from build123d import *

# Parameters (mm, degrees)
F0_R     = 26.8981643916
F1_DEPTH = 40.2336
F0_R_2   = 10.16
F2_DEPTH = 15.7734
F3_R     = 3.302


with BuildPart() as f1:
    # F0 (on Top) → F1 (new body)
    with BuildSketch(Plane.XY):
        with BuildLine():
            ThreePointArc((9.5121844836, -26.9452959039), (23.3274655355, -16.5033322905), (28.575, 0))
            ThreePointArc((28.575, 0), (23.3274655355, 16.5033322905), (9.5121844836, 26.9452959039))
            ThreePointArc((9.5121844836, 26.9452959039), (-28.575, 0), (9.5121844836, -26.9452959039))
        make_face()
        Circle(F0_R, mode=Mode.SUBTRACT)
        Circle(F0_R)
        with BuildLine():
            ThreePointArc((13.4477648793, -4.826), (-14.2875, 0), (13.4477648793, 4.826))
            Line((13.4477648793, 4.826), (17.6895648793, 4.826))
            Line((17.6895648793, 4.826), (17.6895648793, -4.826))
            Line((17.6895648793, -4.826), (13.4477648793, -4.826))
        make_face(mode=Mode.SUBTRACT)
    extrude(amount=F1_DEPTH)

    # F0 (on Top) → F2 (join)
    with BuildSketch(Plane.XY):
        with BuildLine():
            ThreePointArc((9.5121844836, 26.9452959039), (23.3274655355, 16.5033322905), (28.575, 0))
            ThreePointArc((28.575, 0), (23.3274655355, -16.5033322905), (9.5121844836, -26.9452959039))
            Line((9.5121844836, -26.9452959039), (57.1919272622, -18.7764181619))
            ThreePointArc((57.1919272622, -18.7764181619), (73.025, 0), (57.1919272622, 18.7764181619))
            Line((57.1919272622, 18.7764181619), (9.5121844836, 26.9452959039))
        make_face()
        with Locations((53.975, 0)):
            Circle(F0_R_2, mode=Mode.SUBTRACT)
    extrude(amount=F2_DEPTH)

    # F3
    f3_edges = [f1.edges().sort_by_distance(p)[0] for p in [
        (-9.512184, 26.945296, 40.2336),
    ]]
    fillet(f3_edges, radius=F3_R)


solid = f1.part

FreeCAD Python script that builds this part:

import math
import FreeCAD as App
import Part
import Sketcher
from FreeCAD import Vector
Q = App.Units.Quantity


def edges_at(feature, points):
    """Names of the edges that pass closest to the given points."""
    edges = feature.Shape.Edges
    near = lambda p: min(range(len(edges)), key=lambda i: edges[i].distToShape(Part.Vertex(*p))[0])
    return sorted({f"Edge{near(p) + 1}" for p in points})

doc = App.newDocument("Part")
params = doc.addObject("Spreadsheet::Sheet", "Params")
for row, (alias, value) in enumerate([
    ("sketch1_radius", "1.125 in"),
    ("sketch1_radius2", "0.5625 in"),
    ("sketch1_height", "0.38 in"),
    ("sketch1_width", "0.167 in"),
    ("pad1_length", "1.584 in"),
    ("sketch2_diameter", "0.8 in"),
    ("sketch2_radius", "0.75 in"),
    ("sketch2_radius2", "1.125 in"),
    ("pad2_length", "0.621 in"),
    ("fillet_radius", "0.13 in"),
], start=1):
    params.set(f"A{row}", alias)
    params.set(f"B{row}", "=" + value)
    params.setAlias(f"B{row}", alias)

body = doc.addObject("PartDesign::Body", "Body")

sketch1 = doc.addObject("Sketcher::SketchObject", "Sketch")
body.addObject(sketch1)
sketch1.AttachmentSupport = (doc.XY_Plane, [""])
sketch1.MapMode = "FlatFace"
sketch1.addGeometry([
    Part.ArcOfCircle(Part.Circle(Vector(0, 0, 0), Vector(0, 0, 1), 28.6), math.radians(-71), math.radians(0)),
    Part.ArcOfCircle(Part.Circle(Vector(0, 0, 0), Vector(0, 0, 1), 28.6), math.radians(0), math.radians(71)),
    Part.ArcOfCircle(Part.Circle(Vector(0, 0, 0), Vector(0, 0, 1), 28.6), math.radians(71), math.radians(289)),
    Part.LineSegment(Vector(17.7, -4.8, 0), Vector(13.4, -4.8, 0)),
    Part.ArcOfCircle(Part.Circle(Vector(0, 0, 0), Vector(0, 0, 1), 14.3), math.radians(20), math.radians(340)),
    Part.LineSegment(Vector(13.4, 4.8, 0), Vector(17.7, 4.8, 0)),
    Part.LineSegment(Vector(17.7, 4.8, 0), Vector(17.7, -4.8, 0)),
], False)
sketch1.addConstraint([
    Sketcher.Constraint("Tangent", 0, 2, 1, 1),
    Sketcher.Constraint("Tangent", 1, 2, 2, 1),
    Sketcher.Constraint("Tangent", 2, 2, 0, 1),
    Sketcher.Constraint("Coincident", 3, 2, 4, 2),
    Sketcher.Constraint("Coincident", 4, 1, 5, 1),
    Sketcher.Constraint("Coincident", 5, 2, 6, 1),
    Sketcher.Constraint("Coincident", 6, 2, 3, 1),
    Sketcher.Constraint("Horizontal", 3),
    Sketcher.Constraint("Horizontal", 5),
    Sketcher.Constraint("Vertical", 6),
    Sketcher.Constraint("Coincident", 0, 3, -1, 1),
    Sketcher.Constraint("Coincident", 4, 3, -1, 1),
    Sketcher.Constraint("PointOnObject", 0, 2, -1),
    Sketcher.Constraint("Vertical", 1, 2, 2, 2),
    Sketcher.Constraint("Vertical", 3, 2, 4, 1),
    Sketcher.Constraint("Radius", 0, Q("1.125 in")),
    Sketcher.Constraint("Radius", 4, Q("0.5625 in")),
    Sketcher.Constraint("DistanceY", 6, 2, 6, 1, Q("0.38 in")),
    Sketcher.Constraint("DistanceX", 3, 2, 3, 1, Q("0.167 in")),
    Sketcher.Constraint("DistanceX", -1, 1, 1, 2, Q("9.512184 mm")),
])
sketch1.setExpression("Constraints[15]", "Params.sketch1_radius")
sketch1.setExpression("Constraints[16]", "Params.sketch1_radius2")
sketch1.setExpression("Constraints[17]", "Params.sketch1_height")
sketch1.setExpression("Constraints[18]", "Params.sketch1_width")
pad1 = doc.addObject("PartDesign::Pad", "Pad")
body.addObject(pad1)
pad1.Profile = sketch1
pad1.setExpression("Length", "Params.pad1_length")

sketch2 = doc.addObject("Sketcher::SketchObject", "Sketch001")
body.addObject(sketch2)
sketch2.AttachmentSupport = (doc.XY_Plane, [""])
sketch2.MapMode = "FlatFace"
sketch2.addGeometry([
    Part.ArcOfCircle(Part.Circle(Vector(0, 0, 0), Vector(0, 0, 1), 29), math.radians(0), math.radians(71)),
    Part.ArcOfCircle(Part.Circle(Vector(0, 0, 0), Vector(0, 0, 1), 29), math.radians(-71), math.radians(0)),
    Part.LineSegment(Vector(10, -27, 0), Vector(57, -19, 0)),
    Part.ArcOfCircle(Part.Circle(Vector(54, 0, 0), Vector(0, 0, 1), 19), math.radians(-80), math.radians(80)),
    Part.LineSegment(Vector(57, 19, 0), Vector(10, 27, 0)),
    Part.Circle(Vector(54, 0, 0), Vector(0, 0, 1), 10),
], False)
sketch2.addConstraint([
    Sketcher.Constraint("Tangent", 0, 1, 1, 2),
    Sketcher.Constraint("Coincident", 1, 1, 2, 1),
    Sketcher.Constraint("Tangent", 2, 2, 3, 1),
    Sketcher.Constraint("Tangent", 3, 2, 4, 1),
    Sketcher.Constraint("Coincident", 4, 2, 0, 2),
    Sketcher.Constraint("Coincident", 0, 3, -1, 1),
    Sketcher.Constraint("Coincident", 5, 3, 3, 3),
    Sketcher.Constraint("Equal", 0, 1),
    Sketcher.Constraint("Symmetric", 2, 2, 3, 2, -1),
    Sketcher.Constraint("PointOnObject", 0, 1, -1),
    Sketcher.Constraint("Diameter", 5, Q("0.8 in")),
    Sketcher.Constraint("Radius", 3, Q("0.75 in")),
    Sketcher.Constraint("Radius", 0, Q("1.125 in")),
    Sketcher.Constraint("DistanceX", 0, 1, 3, 3, Q("1 in")),
    Sketcher.Constraint("Distance", 2, Q("48.374461 mm")),
])
sketch2.setExpression("Constraints[10]", "Params.sketch2_diameter")
sketch2.setExpression("Constraints[11]", "Params.sketch2_radius")
sketch2.setExpression("Constraints[12]", "Params.sketch2_radius2")
pad2 = doc.addObject("PartDesign::Pad", "Pad001")
body.addObject(pad2)
pad2.Profile = sketch2
pad2.setExpression("Length", "Params.pad2_length")
doc.recompute()

fillet = doc.addObject("PartDesign::Fillet", "Fillet")
body.addObject(fillet)
fillet.Base = (pad2, edges_at(pad2, [(-28.575, 0, 40.234)]))
fillet.setExpression("Radius", "Params.fillet_radius")

doc.recompute()
